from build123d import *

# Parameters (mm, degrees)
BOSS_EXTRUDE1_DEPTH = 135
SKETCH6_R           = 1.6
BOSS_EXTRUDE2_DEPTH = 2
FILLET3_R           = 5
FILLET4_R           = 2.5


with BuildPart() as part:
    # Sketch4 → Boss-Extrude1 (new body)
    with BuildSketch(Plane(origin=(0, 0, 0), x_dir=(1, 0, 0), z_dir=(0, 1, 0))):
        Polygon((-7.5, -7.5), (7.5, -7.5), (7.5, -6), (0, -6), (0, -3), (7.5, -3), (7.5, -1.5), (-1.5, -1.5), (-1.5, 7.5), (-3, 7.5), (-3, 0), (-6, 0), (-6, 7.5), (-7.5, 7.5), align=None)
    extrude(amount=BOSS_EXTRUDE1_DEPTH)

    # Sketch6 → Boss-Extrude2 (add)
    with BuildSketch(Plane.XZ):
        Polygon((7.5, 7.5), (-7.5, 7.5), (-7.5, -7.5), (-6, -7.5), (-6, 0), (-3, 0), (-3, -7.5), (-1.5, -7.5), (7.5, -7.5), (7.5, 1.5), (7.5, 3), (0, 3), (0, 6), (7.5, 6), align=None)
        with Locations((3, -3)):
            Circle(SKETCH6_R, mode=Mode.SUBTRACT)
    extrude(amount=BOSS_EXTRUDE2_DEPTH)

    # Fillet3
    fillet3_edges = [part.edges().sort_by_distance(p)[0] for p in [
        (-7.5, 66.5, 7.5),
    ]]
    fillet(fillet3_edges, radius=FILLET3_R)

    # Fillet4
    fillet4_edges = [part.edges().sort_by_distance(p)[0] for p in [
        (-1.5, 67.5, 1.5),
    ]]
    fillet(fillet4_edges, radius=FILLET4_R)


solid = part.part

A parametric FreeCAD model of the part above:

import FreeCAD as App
import Part
import Sketcher

V = App.Vector


def edges_at(feature, points):
    """Names of the edges that pass closest to the given points."""
    edges = feature.Shape.Edges
    near = lambda p: min(range(len(edges)), key=lambda i: edges[i].distToShape(Part.Vertex(*p))[0])
    return sorted({f"Edge{near(p) + 1}" for p in points})


def add_polygon(sketch, points):
    """Adds a closed chain of lines whose ends are joined by coincident constraints."""
    first, n = sketch.GeometryCount, len(points)
    for a, b in zip(points, points[1:] + points[:1]):
        sketch.addGeometry(Part.LineSegment(App.Vector(*a, 0), App.Vector(*b, 0)), False)
    for i in range(n):
        sketch.addConstraint(Sketcher.Constraint("Coincident", first + i, 2, first + (i + 1) % n, 1))

doc = App.newDocument("Part")
body = doc.addObject("PartDesign::Body", "Body")

# Sketch on XZ plane
sketch1 = body.newObject("Sketcher::SketchObject", "Sketch")
sketch1.AttachmentSupport = (doc.getObject("XZ_Plane"), [""])
sketch1.MapMode = "FlatFace"
add_polygon(sketch1, [(-7.5, 7.5), (7.5, 7.5), (7.5, 6), (0, 6), (0, 3), (7.5, 3), (7.5, 1.5), (-1.5, 1.5), (-1.5, -7.5), (-3, -7.5), (-3, 0), (-6, 0), (-6, -7.5), (-7.5, -7.5)])  # lines 0-13
sketch1.addConstraint([
    Sketcher.Constraint("Horizontal", 0),
    Sketcher.Constraint("Vertical", 1),
    Sketcher.Constraint("Horizontal", 2),
    Sketcher.Constraint("Vertical", 3),
    Sketcher.Constraint("Horizontal", 4),
    Sketcher.Constraint("Vertical", 5),
    Sketcher.Constraint("Horizontal", 6),
    Sketcher.Constraint("Vertical", 7),
    Sketcher.Constraint("Horizontal", 8),
    Sketcher.Constraint("Vertical", 9),
    Sketcher.Constraint("Horizontal", 10),
    Sketcher.Constraint("Vertical", 11),
    Sketcher.Constraint("Horizontal", 12),
    Sketcher.Constraint("Vertical", 13),
    Sketcher.Constraint("Symmetric", 0, 2, 12, 2, -1, 1),
    Sketcher.Constraint("PointOnObject", 2, 2, -2),
    Sketcher.Constraint("PointOnObject", 9, 2, -1),
    Sketcher.Constraint("Horizontal", 8, 2, 11, 2),
    Sketcher.Constraint("Vertical", 1, 2, 4, 2),
    Sketcher.Constraint("Equal", 8, 12),
    Sketcher.Constraint("Equal", 12, 1),
    Sketcher.Constraint("Equal", 10, 3),
    Sketcher.Constraint("Equal", 1, 5),
    Sketcher.Constraint("Equal", 6, 7),
    Sketcher.Constraint("DistanceX", 0, 1, 0, 2, 15.0),
    Sketcher.Constraint("DistanceX", 6, 2, 6, 1, 9.0),
    Sketcher.Constraint("DistanceX", 10, 2, 10, 1, 3.0),
])
pad1 = body.newObject("PartDesign::Pad", "Pad")
pad1.Profile = sketch1
pad1.Length = 135
pad1.Reversed = True

# Sketch on XZ plane
sketch2 = body.newObject("Sketcher::SketchObject", "Sketch001")
sketch2.AttachmentSupport = (doc.getObject("XZ_Plane"), [""])
sketch2.MapMode = "FlatFace"
add_polygon(sketch2, [(7.5, 7.5), (-7.5, 7.5), (-7.5, -7.5), (-6, -7.5), (-6, 0), (-3, 0), (-3, -7.5), (7.5, -7.5), (7.5, 3), (0, 3), (0, 6), (7.5, 6)])  # lines 0-11
sketch2.addGeometry(Part.Circle(V(3, -3, 0), V(0, 0, 1), 1.6), False)  # 12
sketch2.addConstraint([
    Sketcher.Constraint("Horizontal", 0),
    Sketcher.Constraint("Vertical", 1),
    Sketcher.Constraint("Horizontal", 2),
    Sketcher.Constraint("Vertical", 3),
    Sketcher.Constraint("Horizontal", 4),
    Sketcher.Constraint("Vertical", 5),
    Sketcher.Constraint("Horizontal", 6),
    Sketcher.Constraint("Vertical", 7),
    Sketcher.Constraint("Horizontal", 8),
    Sketcher.Constraint("Vertical", 9),
    Sketcher.Constraint("Horizontal", 10),
    Sketcher.Constraint("Vertical", 11),
    Sketcher.Constraint("Symmetric", 0, 2, 6, 2, -1, 1),
    Sketcher.Constraint("Symmetric", 1, 2, 11, 2, -1, 1),
    Sketcher.Constraint("PointOnObject", 3, 2, -1),
    Sketcher.Constraint("PointOnObject", 8, 2, -2),
    Sketcher.Constraint("Equal", 0, 1),
    Sketcher.Constraint("Equal", 6, 7),
    Sketcher.Constraint("Equal", 4, 9),
    Sketcher.Constraint("Diameter", 12, 3.2),
    Sketcher.Constraint("DistanceX", 0, 2, 0, 1, 15.0),
    Sketcher.Constraint("DistanceX", 4, 1, 4, 2, 3.0),
    Sketcher.Constraint("DistanceX", 2, 1, 2, 2, 1.5),
    Sketcher.Constraint("DistanceX", -1, 1, 12, 3, 3.0),
    Sketcher.Constraint("DistanceY", 12, 3, -1, 1, 3.0),
])
pad2 = body.newObject("PartDesign::Pad", "Pad001")
pad2.Profile = sketch2
pad2.Length = 2
doc.recompute()

fillet = body.newObject("PartDesign::Fillet", "Fillet")
fillet.Base = (pad2, edges_at(pad2, [(-7.5, 66.5, 7.5)]))
fillet.Radius = 5
doc.recompute()

fillet2 = body.newObject("PartDesign::Fillet", "Fillet001")
fillet2.Base = (fillet, edges_at(fillet, [(-1.5, 67.5, 1.5)]))
fillet2.Radius = 2.5

doc.recompute()
